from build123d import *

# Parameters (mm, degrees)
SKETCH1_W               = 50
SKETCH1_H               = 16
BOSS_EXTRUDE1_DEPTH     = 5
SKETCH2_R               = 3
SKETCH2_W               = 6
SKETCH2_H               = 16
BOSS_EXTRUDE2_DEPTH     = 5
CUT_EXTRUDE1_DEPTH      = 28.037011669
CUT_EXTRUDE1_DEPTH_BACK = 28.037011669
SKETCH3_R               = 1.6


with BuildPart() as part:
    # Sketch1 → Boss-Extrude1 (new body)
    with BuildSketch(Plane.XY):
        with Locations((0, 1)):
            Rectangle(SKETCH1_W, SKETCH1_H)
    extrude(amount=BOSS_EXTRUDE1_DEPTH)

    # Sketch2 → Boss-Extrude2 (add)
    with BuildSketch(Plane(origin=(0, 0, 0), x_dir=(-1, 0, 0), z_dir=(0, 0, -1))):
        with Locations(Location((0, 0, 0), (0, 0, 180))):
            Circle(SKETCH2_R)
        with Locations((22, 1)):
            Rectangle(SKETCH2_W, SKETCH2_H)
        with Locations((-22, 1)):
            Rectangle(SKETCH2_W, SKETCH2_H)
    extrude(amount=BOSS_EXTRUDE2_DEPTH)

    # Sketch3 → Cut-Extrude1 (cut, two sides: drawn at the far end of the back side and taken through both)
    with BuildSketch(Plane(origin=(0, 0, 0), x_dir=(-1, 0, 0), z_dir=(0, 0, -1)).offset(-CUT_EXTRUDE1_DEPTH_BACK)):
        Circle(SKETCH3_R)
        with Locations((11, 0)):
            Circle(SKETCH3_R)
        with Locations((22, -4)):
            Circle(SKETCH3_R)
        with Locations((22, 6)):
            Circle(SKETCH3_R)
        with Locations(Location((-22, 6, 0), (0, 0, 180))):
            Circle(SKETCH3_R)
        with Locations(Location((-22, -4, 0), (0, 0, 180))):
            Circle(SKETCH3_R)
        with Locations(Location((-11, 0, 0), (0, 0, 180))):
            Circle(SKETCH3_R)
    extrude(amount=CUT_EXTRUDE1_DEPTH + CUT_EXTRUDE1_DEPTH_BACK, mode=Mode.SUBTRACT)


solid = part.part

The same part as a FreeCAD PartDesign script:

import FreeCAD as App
import Part
import Sketcher
from FreeCAD import Vector

doc = App.newDocument("Part")
body = doc.addObject("PartDesign::Body", "Body")

sketch1 = body.newObject("Sketcher::SketchObject", "Sketch")
sketch1.AttachmentSupport = (doc.getObject("XY_Plane"), [""])
sketch1.MapMode = "FlatFace"
sketch1.addGeometry([
    Part.LineSegment(Vector(-25, 9, 0), Vector(-25, -7, 0)),
    Part.LineSegment(Vector(-25, -7, 0), Vector(25, -7, 0)),
    Part.LineSegment(Vector(25, -7, 0), Vector(25, 9, 0)),
    Part.LineSegment(Vector(25, 9, 0), Vector(-25, 9, 0)),
], False)
sketch1.addConstraint([
    Sketcher.Constraint("Coincident", 0, 2, 1, 1),
    Sketcher.Constraint("Coincident", 1, 2, 2, 1),
    Sketcher.Constraint("Coincident", 2, 2, 3, 1),
    Sketcher.Constraint("Coincident", 3, 2, 0, 1),
    Sketcher.Constraint("Vertical", 0),
    Sketcher.Constraint("Horizontal", 1),
    Sketcher.Constraint("Vertical", 2),
    Sketcher.Constraint("Horizontal", 3),
    Sketcher.Constraint("DistanceX", 1, 1, 1, 2, 50.0),
    Sketcher.Constraint("DistanceY", 0, 2, 0, 1, 16.0),
    Sketcher.Constraint("DistanceX", 0, 2, -1, 1, 25.0),
    Sketcher.Constraint("DistanceY", 0, 2, -1, 1, 7.0),
])
pad1 = body.newObject("PartDesign::Pad", "Pad")
pad1.Profile = sketch1
pad1.Length = 5

sketch2 = body.newObject("Sketcher::SketchObject", "Sketch001")
sketch2.AttachmentSupport = (doc.getObject("XY_Plane"), [""])
sketch2.MapMode = "FlatFace"
sketch2.addGeometry([
    Part.Circle(Vector(0, 0, 0), Vector(0, 0, 1), 3),
    Part.LineSegment(Vector(-19, 9, 0), Vector(-19, -7, 0)),
    Part.LineSegment(Vector(-19, -7, 0), Vector(-25, -7, 0)),
    Part.LineSegment(Vector(-25, -7, 0), Vector(-25, 9, 0)),
    Part.LineSegment(Vector(-25, 9, 0), Vector(-19, 9, 0)),
    Part.LineSegment(Vector(25, 9, 0), Vector(25, -7, 0)),
    Part.LineSegment(Vector(25, -7, 0), Vector(19, -7, 0)),
    Part.LineSegment(Vector(19, -7, 0), Vector(19, 9, 0)),
    Part.LineSegment(Vector(19, 9, 0), Vector(25, 9, 0)),
], False)
sketch2.addConstraint([
    Sketcher.Constraint("Coincident", 1, 2, 2, 1),
    Sketcher.Constraint("Coincident", 2, 2, 3, 1),
    Sketcher.Constraint("Coincident", 3, 2, 4, 1),
    Sketcher.Constraint("Coincident", 4, 2, 1, 1),
    Sketcher.Constraint("Coincident", 5, 2, 6, 1),
    Sketcher.Constraint("Coincident", 6, 2, 7, 1),
    Sketcher.Constraint("Coincident", 7, 2, 8, 1),
    Sketcher.Constraint("Coincident", 8, 2, 5, 1),
    Sketcher.Constraint("Vertical", 1),
    Sketcher.Constraint("Horizontal", 2),
    Sketcher.Constraint("Vertical", 3),
    Sketcher.Constraint("Horizontal", 4),
    Sketcher.Constraint("Vertical", 5),
    Sketcher.Constraint("Horizontal", 6),
    Sketcher.Constraint("Vertical", 7),
    Sketcher.Constraint("Horizontal", 8),
    Sketcher.Constraint("Coincident", 0, 3, -1, 1),
    Sketcher.Constraint("Symmetric", 2, 2, 5, 2, -2),
    Sketcher.Constraint("Symmetric", 4, 2, 7, 2, -2),
    Sketcher.Constraint("Diameter", 0, 6.0),
    Sketcher.Constraint("DistanceX", 2, 2, 2, 1, 6.0),
    Sketcher.Constraint("DistanceY", 1, 2, 1, 1, 16.0),
    Sketcher.Constraint("DistanceX", 1, 2, -1, 1, 19.0),
    Sketcher.Constraint("DistanceY", 1, 2, -1, 1, 7.0),
])
pad2 = body.newObject("PartDesign::Pad", "Pad001")
pad2.Profile = sketch2
pad2.Length = 5
pad2.Reversed = True

sketch3 = body.newObject("Sketcher::SketchObject", "Sketch002")
sketch3.AttachmentSupport = (doc.getObject("XY_Plane"), [""])
sketch3.MapMode = "FlatFace"
sketch3.addGeometry([
    Part.Circle(Vector(0, 0, 0), Vector(0, 0, 1), 1.6),
    Part.Circle(Vector(-11, 0, 0), Vector(0, 0, 1), 1.6),
    Part.Circle(Vector(-22, -4, 0), Vector(0, 0, 1), 1.6),
    Part.Circle(Vector(-22, 6, 0), Vector(0, 0, 1), 1.6),
    Part.Circle(Vector(22, 6, 0), Vector(0, 0, 1), 1.6),
    Part.Circle(Vector(22, -4, 0), Vector(0, 0, 1), 1.6),
    Part.Circle(Vector(11, 0, 0), Vector(0, 0, 1), 1.6),
], False)
sketch3.addConstraint([
    Sketcher.Constraint("Coincident", 0, 3, -1, 1),
    Sketcher.Constraint("Equal", 0, 1),
    Sketcher.Constraint("Equal", 1, 2),
    Sketcher.Constraint("Equal", 2, 3),
    Sketcher.Constraint("Equal", 3, 4),
    Sketcher.Constraint("Equal", 4, 5),
    Sketcher.Constraint("Equal", 5, 6),
    Sketcher.Constraint("Symmetric", 1, 3, 6, 3, -1, 1),
    Sketcher.Constraint("Symmetric", 3, 3, 4, 3, -2),
    Sketcher.Constraint("Symmetric", 2, 3, 5, 3, -2),
    Sketcher.Constraint("PointOnObject", 1, 3, -1),
    Sketcher.Constraint("Vertical", 2, 3, 3, 3),
    Sketcher.Constraint("Diameter", 0, 3.2),
    Sketcher.Constraint("DistanceX", 1, 3, -1, 1, 11.0),
    Sketcher.Constraint("DistanceX", 2, 3, -1, 1, 22.0),
    Sketcher.Constraint("DistanceY", 2, 3, -1, 1, 4.0),
    Sketcher.Constraint("DistanceY", -1, 1, 3, 3, 6.0),
])
pocket1 = body.newObject("PartDesign::Pocket", "Pocket")
pocket1.Profile = sketch3
pocket1.Type = "ThroughAll"
pocket1.Midplane = True

doc.recompute()
